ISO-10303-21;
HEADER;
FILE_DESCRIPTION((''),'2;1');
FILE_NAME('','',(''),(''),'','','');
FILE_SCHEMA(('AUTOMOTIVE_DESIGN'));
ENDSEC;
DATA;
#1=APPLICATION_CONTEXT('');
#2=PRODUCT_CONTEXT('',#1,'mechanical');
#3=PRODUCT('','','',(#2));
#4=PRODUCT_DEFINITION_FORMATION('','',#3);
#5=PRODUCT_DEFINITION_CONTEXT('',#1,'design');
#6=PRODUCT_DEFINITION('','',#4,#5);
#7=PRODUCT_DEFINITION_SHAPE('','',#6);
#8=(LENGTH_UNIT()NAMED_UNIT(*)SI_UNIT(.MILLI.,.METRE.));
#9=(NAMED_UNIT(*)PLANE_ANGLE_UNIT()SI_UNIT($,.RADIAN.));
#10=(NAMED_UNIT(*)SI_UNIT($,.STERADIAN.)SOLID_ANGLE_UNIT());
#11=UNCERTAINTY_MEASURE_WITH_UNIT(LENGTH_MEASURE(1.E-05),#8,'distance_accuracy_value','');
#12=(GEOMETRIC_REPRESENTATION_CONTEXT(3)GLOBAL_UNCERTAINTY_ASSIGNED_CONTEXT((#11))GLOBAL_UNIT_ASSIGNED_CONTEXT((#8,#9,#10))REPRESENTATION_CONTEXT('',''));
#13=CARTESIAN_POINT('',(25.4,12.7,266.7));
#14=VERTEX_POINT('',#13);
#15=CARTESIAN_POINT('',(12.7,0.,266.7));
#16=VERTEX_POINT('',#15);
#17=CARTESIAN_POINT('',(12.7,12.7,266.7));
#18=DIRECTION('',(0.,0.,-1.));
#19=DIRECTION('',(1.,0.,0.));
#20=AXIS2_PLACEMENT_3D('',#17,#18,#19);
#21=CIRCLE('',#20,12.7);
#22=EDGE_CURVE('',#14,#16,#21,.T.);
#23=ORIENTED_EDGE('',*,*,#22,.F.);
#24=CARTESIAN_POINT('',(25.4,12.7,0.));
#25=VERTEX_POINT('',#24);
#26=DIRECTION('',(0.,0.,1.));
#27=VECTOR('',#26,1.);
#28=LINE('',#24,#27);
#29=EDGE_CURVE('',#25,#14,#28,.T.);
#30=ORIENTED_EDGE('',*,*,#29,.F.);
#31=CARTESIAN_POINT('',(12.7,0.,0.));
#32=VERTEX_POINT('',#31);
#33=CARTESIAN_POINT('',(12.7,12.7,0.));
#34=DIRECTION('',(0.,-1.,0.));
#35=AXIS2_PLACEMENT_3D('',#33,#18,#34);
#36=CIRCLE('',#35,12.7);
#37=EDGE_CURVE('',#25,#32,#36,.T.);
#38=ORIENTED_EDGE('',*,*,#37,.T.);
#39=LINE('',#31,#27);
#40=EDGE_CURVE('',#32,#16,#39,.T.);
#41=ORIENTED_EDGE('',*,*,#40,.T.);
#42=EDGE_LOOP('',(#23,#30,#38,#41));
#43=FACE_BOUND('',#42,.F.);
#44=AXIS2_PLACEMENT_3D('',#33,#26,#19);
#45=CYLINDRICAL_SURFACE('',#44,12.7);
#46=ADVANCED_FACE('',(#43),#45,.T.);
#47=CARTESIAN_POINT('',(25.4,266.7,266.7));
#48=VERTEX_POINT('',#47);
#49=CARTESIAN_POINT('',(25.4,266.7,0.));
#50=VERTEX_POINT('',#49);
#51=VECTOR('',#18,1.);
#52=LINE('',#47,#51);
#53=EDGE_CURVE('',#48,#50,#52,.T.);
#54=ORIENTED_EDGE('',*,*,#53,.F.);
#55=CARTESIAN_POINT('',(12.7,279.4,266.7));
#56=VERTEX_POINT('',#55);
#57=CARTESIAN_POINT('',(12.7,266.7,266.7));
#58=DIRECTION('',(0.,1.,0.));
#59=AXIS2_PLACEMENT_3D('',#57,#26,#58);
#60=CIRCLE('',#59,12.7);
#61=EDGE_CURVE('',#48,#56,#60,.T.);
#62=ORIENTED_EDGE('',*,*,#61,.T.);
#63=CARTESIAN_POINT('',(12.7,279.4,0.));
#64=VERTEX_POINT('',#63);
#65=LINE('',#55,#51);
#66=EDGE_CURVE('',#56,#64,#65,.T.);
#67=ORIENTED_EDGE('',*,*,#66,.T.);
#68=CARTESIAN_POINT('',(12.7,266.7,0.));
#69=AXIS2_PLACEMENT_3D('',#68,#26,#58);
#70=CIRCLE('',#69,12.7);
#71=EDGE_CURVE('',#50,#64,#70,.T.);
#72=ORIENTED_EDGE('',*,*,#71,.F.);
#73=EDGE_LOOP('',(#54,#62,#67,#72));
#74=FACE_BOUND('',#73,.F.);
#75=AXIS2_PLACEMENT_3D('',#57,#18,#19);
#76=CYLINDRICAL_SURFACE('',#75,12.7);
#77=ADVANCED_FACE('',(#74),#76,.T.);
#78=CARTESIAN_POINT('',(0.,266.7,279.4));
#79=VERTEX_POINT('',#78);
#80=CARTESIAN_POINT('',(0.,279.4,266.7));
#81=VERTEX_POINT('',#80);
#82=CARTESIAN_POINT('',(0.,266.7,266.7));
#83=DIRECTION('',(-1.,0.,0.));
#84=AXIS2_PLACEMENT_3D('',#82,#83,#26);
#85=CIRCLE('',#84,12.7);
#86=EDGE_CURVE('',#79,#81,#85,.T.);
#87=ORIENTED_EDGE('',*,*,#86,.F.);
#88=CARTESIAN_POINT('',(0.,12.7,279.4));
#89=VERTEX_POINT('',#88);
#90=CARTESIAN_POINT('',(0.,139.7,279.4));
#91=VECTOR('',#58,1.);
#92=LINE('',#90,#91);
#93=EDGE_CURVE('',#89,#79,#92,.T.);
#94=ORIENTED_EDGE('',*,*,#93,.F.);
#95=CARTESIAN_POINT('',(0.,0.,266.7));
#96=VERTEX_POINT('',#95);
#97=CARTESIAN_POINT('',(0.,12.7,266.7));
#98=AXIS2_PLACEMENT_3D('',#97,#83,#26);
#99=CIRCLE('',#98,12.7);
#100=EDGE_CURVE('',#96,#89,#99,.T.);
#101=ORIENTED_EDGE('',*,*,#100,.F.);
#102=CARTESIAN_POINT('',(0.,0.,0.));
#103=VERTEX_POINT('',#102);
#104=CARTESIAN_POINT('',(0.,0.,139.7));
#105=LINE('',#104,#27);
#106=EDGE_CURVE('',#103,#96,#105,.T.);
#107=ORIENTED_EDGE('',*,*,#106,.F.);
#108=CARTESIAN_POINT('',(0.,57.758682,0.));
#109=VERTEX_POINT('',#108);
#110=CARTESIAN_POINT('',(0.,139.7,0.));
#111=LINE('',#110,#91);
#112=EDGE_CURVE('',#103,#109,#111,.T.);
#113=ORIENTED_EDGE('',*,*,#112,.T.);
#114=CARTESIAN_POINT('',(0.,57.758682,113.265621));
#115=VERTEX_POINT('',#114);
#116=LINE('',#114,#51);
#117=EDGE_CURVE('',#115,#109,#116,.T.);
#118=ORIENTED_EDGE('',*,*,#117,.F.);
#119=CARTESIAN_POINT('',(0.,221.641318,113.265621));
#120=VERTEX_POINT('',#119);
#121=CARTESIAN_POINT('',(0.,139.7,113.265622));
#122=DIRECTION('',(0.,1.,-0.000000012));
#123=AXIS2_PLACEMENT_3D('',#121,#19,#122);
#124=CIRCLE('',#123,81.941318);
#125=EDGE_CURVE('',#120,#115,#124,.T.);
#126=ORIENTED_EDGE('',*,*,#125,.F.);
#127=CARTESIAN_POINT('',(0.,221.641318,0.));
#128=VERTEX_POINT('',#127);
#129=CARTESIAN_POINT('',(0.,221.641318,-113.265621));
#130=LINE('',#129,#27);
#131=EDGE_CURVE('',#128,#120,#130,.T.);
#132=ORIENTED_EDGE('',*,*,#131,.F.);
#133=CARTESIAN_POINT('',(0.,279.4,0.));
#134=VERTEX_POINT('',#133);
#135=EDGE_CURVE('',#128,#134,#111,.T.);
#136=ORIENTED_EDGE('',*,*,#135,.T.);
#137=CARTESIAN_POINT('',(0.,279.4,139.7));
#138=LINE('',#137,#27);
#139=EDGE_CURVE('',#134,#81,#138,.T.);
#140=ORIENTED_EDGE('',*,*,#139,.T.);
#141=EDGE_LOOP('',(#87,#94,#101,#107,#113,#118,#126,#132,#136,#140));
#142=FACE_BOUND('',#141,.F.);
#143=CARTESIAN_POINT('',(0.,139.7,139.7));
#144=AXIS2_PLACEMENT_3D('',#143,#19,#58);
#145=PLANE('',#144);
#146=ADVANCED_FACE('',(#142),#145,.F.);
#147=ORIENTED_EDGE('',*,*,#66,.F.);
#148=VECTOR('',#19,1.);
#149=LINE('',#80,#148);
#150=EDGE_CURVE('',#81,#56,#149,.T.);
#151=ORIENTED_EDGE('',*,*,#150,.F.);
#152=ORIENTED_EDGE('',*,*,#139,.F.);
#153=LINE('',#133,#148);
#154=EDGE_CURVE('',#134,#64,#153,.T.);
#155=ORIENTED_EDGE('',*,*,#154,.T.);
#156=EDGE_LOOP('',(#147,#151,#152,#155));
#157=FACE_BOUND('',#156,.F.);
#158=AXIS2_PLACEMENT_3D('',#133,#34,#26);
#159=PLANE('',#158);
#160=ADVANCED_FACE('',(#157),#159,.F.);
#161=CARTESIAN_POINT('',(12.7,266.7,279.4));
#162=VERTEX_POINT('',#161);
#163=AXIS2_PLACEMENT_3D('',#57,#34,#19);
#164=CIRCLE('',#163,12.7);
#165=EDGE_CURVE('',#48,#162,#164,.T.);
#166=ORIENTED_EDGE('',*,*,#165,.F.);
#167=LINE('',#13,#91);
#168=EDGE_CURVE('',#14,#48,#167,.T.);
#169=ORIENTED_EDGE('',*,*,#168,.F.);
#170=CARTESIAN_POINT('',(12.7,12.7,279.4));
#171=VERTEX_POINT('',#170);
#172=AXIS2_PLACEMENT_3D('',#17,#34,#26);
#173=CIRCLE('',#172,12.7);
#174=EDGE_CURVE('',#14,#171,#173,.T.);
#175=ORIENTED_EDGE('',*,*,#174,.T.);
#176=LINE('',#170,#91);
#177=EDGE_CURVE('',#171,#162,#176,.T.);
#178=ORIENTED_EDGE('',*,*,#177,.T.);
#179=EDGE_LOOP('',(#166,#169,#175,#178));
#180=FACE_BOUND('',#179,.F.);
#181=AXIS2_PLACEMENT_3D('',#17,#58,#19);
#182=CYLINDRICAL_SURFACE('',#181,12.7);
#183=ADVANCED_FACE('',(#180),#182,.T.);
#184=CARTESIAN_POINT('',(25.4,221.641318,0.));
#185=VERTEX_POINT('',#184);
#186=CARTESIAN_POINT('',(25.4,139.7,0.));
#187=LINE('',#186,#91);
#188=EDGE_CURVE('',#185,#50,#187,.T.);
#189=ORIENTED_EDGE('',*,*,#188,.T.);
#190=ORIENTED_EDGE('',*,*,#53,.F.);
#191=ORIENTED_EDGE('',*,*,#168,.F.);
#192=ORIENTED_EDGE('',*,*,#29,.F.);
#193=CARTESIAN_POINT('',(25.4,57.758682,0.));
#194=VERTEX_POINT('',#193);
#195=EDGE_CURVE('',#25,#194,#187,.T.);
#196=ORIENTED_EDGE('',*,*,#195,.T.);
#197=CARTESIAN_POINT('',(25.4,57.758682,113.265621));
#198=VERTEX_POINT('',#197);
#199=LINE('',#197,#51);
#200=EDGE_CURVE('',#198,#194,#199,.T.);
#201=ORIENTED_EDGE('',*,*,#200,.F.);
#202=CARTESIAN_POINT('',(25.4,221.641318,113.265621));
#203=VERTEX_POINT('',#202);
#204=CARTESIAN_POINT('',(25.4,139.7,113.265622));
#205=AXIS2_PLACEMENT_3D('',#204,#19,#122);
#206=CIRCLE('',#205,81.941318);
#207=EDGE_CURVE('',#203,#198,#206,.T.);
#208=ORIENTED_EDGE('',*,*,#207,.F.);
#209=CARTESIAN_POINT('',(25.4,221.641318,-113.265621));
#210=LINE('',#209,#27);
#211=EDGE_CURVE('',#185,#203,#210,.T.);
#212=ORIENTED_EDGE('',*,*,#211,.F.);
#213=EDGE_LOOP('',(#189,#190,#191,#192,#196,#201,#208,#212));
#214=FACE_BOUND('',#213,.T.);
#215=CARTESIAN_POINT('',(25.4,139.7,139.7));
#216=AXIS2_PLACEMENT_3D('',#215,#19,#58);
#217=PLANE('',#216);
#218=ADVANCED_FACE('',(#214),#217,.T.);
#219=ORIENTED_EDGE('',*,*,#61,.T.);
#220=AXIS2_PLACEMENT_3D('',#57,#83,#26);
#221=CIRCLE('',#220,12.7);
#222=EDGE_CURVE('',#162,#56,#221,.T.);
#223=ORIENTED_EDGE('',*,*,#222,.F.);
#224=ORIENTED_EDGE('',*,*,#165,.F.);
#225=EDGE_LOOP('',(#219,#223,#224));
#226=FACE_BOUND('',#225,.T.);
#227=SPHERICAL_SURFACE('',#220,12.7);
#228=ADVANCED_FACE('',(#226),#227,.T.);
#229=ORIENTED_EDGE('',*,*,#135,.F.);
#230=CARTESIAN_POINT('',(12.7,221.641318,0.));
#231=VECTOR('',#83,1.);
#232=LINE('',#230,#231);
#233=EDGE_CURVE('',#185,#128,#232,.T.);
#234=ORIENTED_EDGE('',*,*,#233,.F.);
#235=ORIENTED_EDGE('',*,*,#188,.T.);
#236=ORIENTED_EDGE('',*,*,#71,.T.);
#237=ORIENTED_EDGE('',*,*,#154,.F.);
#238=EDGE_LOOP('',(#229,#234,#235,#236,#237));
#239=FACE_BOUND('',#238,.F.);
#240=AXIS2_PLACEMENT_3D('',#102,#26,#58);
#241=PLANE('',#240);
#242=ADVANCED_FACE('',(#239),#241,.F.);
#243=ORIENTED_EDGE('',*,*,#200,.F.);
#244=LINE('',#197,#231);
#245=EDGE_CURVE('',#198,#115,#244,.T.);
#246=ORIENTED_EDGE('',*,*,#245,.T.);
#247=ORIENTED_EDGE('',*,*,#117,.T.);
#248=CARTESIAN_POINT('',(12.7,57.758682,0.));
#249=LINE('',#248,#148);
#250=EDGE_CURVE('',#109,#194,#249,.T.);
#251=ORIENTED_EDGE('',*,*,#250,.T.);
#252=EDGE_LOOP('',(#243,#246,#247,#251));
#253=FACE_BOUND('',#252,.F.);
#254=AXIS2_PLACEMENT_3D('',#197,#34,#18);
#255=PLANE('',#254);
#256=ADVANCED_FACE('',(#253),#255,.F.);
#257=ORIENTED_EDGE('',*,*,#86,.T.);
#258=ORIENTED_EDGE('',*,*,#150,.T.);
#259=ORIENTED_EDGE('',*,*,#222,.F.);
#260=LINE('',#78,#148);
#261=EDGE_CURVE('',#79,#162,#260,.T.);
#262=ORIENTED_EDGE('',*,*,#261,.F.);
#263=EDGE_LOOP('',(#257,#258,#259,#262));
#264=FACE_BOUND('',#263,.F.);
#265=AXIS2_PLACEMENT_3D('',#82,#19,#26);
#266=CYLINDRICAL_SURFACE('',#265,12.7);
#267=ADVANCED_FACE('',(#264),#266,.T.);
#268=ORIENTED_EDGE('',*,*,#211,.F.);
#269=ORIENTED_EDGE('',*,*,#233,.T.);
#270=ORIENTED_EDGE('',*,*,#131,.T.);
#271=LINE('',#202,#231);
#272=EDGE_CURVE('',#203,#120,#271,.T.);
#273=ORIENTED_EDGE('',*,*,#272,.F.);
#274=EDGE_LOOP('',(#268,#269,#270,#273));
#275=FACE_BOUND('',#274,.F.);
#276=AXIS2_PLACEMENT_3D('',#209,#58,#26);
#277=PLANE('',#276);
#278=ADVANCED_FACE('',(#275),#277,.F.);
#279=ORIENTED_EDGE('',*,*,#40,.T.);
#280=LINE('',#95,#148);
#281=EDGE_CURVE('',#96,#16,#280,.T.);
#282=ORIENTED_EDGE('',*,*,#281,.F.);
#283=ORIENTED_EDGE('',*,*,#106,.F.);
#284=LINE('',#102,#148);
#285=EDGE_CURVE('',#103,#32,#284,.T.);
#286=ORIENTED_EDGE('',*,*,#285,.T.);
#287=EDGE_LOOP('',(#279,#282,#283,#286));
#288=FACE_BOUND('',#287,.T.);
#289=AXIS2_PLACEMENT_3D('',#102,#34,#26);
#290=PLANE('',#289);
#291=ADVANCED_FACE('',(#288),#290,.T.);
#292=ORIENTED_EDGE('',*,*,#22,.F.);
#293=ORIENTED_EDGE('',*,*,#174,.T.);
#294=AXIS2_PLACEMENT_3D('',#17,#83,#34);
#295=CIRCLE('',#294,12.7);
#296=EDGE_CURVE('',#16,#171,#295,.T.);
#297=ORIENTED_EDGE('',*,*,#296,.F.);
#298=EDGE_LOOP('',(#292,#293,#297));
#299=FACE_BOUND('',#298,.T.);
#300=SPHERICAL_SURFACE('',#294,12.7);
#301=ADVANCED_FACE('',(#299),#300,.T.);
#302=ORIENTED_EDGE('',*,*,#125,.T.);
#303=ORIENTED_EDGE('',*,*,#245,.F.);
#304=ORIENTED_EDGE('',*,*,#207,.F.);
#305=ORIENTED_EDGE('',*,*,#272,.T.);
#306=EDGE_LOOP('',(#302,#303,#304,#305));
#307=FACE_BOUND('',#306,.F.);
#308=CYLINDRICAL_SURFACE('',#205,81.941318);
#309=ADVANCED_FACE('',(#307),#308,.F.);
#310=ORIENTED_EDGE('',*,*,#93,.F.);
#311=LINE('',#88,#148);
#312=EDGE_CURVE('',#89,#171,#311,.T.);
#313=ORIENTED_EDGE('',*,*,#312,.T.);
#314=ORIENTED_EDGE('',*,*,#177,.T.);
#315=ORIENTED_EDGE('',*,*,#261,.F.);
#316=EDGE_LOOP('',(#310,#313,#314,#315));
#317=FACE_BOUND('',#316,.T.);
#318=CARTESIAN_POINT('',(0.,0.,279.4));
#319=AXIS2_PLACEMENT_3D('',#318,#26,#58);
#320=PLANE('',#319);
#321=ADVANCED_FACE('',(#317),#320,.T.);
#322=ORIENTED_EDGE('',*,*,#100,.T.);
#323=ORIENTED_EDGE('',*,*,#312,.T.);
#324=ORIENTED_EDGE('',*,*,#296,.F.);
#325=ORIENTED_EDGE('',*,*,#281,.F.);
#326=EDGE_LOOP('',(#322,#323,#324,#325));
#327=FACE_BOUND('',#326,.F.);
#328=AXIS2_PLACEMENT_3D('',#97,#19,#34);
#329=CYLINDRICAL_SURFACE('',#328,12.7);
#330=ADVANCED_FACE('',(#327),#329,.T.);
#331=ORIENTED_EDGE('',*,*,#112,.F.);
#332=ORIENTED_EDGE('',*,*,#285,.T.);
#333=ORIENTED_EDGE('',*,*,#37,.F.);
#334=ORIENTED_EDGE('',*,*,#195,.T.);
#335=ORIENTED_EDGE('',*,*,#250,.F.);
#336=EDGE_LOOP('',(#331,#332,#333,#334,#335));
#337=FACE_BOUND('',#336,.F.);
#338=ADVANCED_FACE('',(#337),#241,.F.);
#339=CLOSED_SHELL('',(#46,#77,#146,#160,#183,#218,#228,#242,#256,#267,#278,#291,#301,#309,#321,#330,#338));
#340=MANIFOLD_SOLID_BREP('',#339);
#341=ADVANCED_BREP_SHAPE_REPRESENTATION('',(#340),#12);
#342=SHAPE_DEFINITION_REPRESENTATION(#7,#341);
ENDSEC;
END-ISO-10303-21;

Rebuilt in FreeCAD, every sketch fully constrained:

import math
import FreeCAD as App
import Part
import Sketcher

V = App.Vector
Q = App.Units.Quantity


def edges_at(feature, points):
    """Names of the edges that pass closest to the given points."""
    edges = feature.Shape.Edges
    near = lambda p: min(range(len(edges)), key=lambda i: edges[i].distToShape(Part.Vertex(*p))[0])
    return sorted({f"Edge{near(p) + 1}" for p in points})


def add_polygon(sketch, points):
    """Adds a closed chain of lines whose ends are joined by coincident constraints."""
    first, n = sketch.GeometryCount, len(points)
    for a, b in zip(points, points[1:] + points[:1]):
        sketch.addGeometry(Part.LineSegment(App.Vector(*a, 0), App.Vector(*b, 0)), False)
    for i in range(n):
        sketch.addConstraint(Sketcher.Constraint("Coincident", first + i, 2, first + (i + 1) % n, 1))

doc = App.newDocument("Part")
body = doc.addObject("PartDesign::Body", "Body")

# Sketch on YZ plane
sketch1 = body.newObject("Sketcher::SketchObject", "Sketch")
sketch1.AttachmentSupport = (doc.getObject("YZ_Plane"), [""])
sketch1.MapMode = "FlatFace"
add_polygon(sketch1, [(0, 279), (0, 0), (279, 0), (279, 279)])  # lines 0-3
sketch1.addConstraint([
    Sketcher.Constraint("Vertical", 0),
    Sketcher.Constraint("Horizontal", 1),
    Sketcher.Constraint("Vertical", 2),
    Sketcher.Constraint("Horizontal", 3),
    Sketcher.Constraint("Coincident", 0, 2, -1, 1),
    Sketcher.Constraint("Equal", 3, 0),
    Sketcher.Constraint("DistanceX", 1, 1, 1, 2, Q("11 in")),
])
pad1 = body.newObject("PartDesign::Pad", "Pad")
pad1.Profile = sketch1
pad1.Length = Q("1 in")

# Sketch on YZ plane
sketch2 = body.newObject("Sketcher::SketchObject", "Sketch001")
sketch2.AttachmentSupport = (doc.getObject("YZ_Plane"), [""])
sketch2.MapMode = "FlatFace"
sketch2.AttachmentOffset = App.Placement(V(0, 0, 1 * 25.4), App.Rotation())
sketch2.addGeometry([
    Part.LineSegment(V(222, -113, 0), V(222, 113, 0)),
    Part.ArcOfCircle(Part.Circle(V(140, 113, 0), V(0, 0, 1), 82), math.radians(0), math.radians(180)),
    Part.LineSegment(V(58, 113, 0), V(58, -113, 0)),
    Part.LineSegment(V(58, -113, 0), V(222, -113, 0)),
], False)
sketch2.addConstraint([
    Sketcher.Constraint("Tangent", 0, 2, 1, 1),
    Sketcher.Constraint("Tangent", 1, 2, 2, 1),
    Sketcher.Constraint("Coincident", 2, 2, 3, 1),
    Sketcher.Constraint("Coincident", 3, 2, 0, 1),
    Sketcher.Constraint("Vertical", 0),
    Sketcher.Constraint("Vertical", 2),
    Sketcher.Constraint("Horizontal", 3),
    Sketcher.Constraint("DistanceX", -1, 1, 1, 3, Q("5.5 in")),
    Sketcher.Constraint("Radius", 1, 81.941318),
    Sketcher.Constraint("DistanceY", 0, 1, 0, 2, 226.531242),
    Sketcher.Constraint("DistanceY", -1, 1, 1, 3, 113.265622),
])
pocket1 = body.newObject("PartDesign::Pocket", "Pocket")
pocket1.Profile = sketch2
pocket1.Length = Q("1 in")
doc.recompute()

fillet = body.newObject("PartDesign::Fillet", "Fillet")
fillet.Base = (pocket1, edges_at(pocket1, [(12.7, 0, 279.4), (12.7, 279.4, 279.4)]))
fillet.Radius = Q("0.5 in")
doc.recompute()

fillet2 = body.newObject("PartDesign::Fillet", "Fillet001")
fillet2.Base = (fillet, edges_at(fillet, [(25.4, 139.7, 279.4)]))
fillet2.Radius = Q("0.5 in")

doc.recompute()
